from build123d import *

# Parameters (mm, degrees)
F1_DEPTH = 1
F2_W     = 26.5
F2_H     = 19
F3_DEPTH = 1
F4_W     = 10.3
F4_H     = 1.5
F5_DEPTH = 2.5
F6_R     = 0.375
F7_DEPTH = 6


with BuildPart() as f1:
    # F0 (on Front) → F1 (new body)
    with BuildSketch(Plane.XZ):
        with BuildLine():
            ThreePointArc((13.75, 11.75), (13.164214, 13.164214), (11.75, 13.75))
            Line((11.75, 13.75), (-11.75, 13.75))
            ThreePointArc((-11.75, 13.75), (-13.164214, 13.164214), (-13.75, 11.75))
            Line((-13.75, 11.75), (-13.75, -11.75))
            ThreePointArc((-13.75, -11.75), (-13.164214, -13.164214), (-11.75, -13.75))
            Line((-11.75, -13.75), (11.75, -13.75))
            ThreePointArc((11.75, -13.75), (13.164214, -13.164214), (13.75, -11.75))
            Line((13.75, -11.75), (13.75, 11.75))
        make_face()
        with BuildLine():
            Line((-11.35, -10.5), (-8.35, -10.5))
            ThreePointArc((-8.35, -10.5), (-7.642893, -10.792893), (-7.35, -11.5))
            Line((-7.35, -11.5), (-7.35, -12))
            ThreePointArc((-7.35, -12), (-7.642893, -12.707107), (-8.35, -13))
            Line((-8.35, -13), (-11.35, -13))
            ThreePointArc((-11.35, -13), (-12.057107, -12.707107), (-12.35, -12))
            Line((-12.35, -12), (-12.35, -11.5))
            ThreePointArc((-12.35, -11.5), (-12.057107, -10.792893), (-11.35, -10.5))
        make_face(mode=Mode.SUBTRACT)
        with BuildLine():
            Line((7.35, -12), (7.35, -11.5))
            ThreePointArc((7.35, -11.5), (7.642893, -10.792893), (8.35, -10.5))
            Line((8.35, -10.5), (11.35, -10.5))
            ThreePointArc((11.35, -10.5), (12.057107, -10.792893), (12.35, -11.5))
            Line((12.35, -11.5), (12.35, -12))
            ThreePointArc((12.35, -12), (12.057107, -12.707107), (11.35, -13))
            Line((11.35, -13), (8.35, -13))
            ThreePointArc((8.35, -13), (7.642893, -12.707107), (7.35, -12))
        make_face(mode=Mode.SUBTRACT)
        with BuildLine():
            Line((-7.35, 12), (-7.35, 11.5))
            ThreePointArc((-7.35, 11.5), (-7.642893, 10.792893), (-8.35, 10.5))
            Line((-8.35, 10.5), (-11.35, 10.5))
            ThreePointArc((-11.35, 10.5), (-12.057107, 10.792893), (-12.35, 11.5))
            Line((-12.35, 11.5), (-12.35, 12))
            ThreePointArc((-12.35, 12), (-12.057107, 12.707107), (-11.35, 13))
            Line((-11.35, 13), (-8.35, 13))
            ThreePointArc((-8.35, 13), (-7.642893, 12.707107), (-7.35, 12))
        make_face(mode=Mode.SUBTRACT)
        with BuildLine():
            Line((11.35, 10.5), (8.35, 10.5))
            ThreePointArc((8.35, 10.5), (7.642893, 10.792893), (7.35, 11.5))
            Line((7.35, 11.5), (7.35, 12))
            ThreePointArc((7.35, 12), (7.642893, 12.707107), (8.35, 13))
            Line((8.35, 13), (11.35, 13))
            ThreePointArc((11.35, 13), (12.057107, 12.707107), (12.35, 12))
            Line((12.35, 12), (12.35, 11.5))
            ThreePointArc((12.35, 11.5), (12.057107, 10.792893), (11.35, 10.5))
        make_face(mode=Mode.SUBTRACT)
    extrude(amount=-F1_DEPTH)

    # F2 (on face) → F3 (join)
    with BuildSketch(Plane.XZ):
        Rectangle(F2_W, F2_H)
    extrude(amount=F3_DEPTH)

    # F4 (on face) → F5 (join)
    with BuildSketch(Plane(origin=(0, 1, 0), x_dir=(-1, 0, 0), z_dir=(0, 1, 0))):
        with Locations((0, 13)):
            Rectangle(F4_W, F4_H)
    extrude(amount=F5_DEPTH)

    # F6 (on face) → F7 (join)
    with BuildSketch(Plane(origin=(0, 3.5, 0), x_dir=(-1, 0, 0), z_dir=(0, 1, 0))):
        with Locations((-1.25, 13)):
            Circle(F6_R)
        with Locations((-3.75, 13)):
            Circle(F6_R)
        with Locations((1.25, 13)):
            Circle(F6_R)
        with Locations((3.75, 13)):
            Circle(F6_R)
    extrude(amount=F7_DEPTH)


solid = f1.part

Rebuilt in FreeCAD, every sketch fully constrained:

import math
import FreeCAD as App
import Part
import Sketcher
Q = App.Units.Quantity


def add_polygon(sketch, points):
    """Adds a closed chain of lines whose ends are joined by coincident constraints."""
    first, n = sketch.GeometryCount, len(points)
    for a, b in zip(points, points[1:] + points[:1]):
        sketch.addGeometry(Part.LineSegment(App.Vector(*a, 0), App.Vector(*b, 0)), False)
    for i in range(n):
        sketch.addConstraint(Sketcher.Constraint("Coincident", first + i, 2, first + (i + 1) % n, 1))

doc = App.newDocument("Part")
body = doc.addObject("PartDesign::Body", "Body")

# Sketch on XZ plane
sketch1 = body.newObject("Sketcher::SketchObject", "Sketch")
sketch1.AttachmentSupport = (doc.getObject("XZ_Plane"), [""])
sketch1.MapMode = "FlatFace"
sketch1.addGeometry(Part.ArcOfCircle(Part.Circle(App.Vector(11.750001, 11.750001, 0), App.Vector(0, 0, 1), 1.999999), math.radians(-0.000043), math.radians(90.000043)), False)
sketch1.addGeometry(Part.LineSegment(App.Vector(11.75, 13.75, 0), App.Vector(-11.75, 13.75, 0)), False)
sketch1.addGeometry(Part.ArcOfCircle(Part.Circle(App.Vector(-11.750001, 11.750001, 0), App.Vector(0, 0, 1), 1.999999), math.radians(89.999957), math.radians(180.000043)), False)
sketch1.addGeometry(Part.LineSegment(App.Vector(-13.75, 11.75, 0), App.Vector(-13.75, -11.75, 0)), False)
sketch1.addGeometry(Part.ArcOfCircle(Part.Circle(App.Vector(-11.750001, -11.750001, 0), App.Vector(0, 0, 1), 1.999999), math.radians(179.999957), math.radians(270.000043)), False)
sketch1.addGeometry(Part.LineSegment(App.Vector(-11.75, -13.75, 0), App.Vector(11.75, -13.75, 0)), False)
sketch1.addGeometry(Part.ArcOfCircle(Part.Circle(App.Vector(11.750001, -11.750001, 0), App.Vector(0, 0, 1), 1.999999), math.radians(-90.000043), math.radians(0.000043)), False)
sketch1.addGeometry(Part.LineSegment(App.Vector(13.75, -11.75, 0), App.Vector(13.75, 11.75, 0)), False)
sketch1.addGeometry(Part.ArcOfCircle(Part.Circle(App.Vector(-11.350001, -11.499999, 0), App.Vector(0, 0, 1), 0.999999), math.radians(89.999957), math.radians(180.000043)), False)
sketch1.addGeometry(Part.LineSegment(App.Vector(-11.35, -10.5, 0), App.Vector(-8.35, -10.5, 0)), False)
sketch1.addGeometry(Part.ArcOfCircle(Part.Circle(App.Vector(-8.349999, -11.499999, 0), App.Vector(0, 0, 1), 0.999999), math.radians(-0.000043), math.radians(90.000043)), False)
sketch1.addGeometry(Part.LineSegment(App.Vector(-7.35, -11.5, 0), App.Vector(-7.35, -12, 0)), False)
sketch1.addGeometry(Part.ArcOfCircle(Part.Circle(App.Vector(-8.349999, -12.000001, 0), App.Vector(0, 0, 1), 0.999999), math.radians(-90.000043), math.radians(0.000043)), False)
sketch1.addGeometry(Part.LineSegment(App.Vector(-8.35, -13, 0), App.Vector(-11.35, -13, 0)), False)
sketch1.addGeometry(Part.ArcOfCircle(Part.Circle(App.Vector(-11.350001, -12.000001, 0), App.Vector(0, 0, 1), 0.999999), math.radians(179.999957), math.radians(270.000043)), False)
sketch1.addGeometry(Part.LineSegment(App.Vector(-12.35, -12, 0), App.Vector(-12.35, -11.5, 0)), False)
sketch1.addGeometry(Part.ArcOfCircle(Part.Circle(App.Vector(8.349999, -12.000001, 0), App.Vector(0, 0, 1), 0.999999), math.radians(179.999957), math.radians(270.000043)), False)
sketch1.addGeometry(Part.LineSegment(App.Vector(7.35, -12, 0), App.Vector(7.35, -11.5, 0)), False)
sketch1.addGeometry(Part.ArcOfCircle(Part.Circle(App.Vector(8.349999, -11.499999, 0), App.Vector(0, 0, 1), 0.999999), math.radians(89.999957), math.radians(180.000043)), False)
sketch1.addGeometry(Part.LineSegment(App.Vector(8.35, -10.5, 0), App.Vector(11.35, -10.5, 0)), False)
sketch1.addGeometry(Part.ArcOfCircle(Part.Circle(App.Vector(11.350001, -11.499999, 0), App.Vector(0, 0, 1), 0.999999), math.radians(-0.000043), math.radians(90.000043)), False)
sketch1.addGeometry(Part.LineSegment(App.Vector(12.35, -11.5, 0), App.Vector(12.35, -12, 0)), False)
sketch1.addGeometry(Part.ArcOfCircle(Part.Circle(App.Vector(11.350001, -12.000001, 0), App.Vector(0, 0, 1), 0.999999), math.radians(-90.000043), math.radians(0.000043)), False)
sketch1.addGeometry(Part.LineSegment(App.Vector(11.35, -13, 0), App.Vector(8.35, -13, 0)), False)
sketch1.addGeometry(Part.ArcOfCircle(Part.Circle(App.Vector(-8.349999, 12.000001, 0), App.Vector(0, 0, 1), 0.999999), math.radians(-0.000043), math.radians(90.000043)), False)
sketch1.addGeometry(Part.LineSegment(App.Vector(-7.35, 12, 0), App.Vector(-7.35, 11.5, 0)), False)
sketch1.addGeometry(Part.ArcOfCircle(Part.Circle(App.Vector(-8.349999, 11.499999, 0), App.Vector(0, 0, 1), 0.999999), math.radians(-90.000043), math.radians(0.000043)), False)
sketch1.addGeometry(Part.LineSegment(App.Vector(-8.35, 10.5, 0), App.Vector(-11.35, 10.5, 0)), False)
sketch1.addGeometry(Part.ArcOfCircle(Part.Circle(App.Vector(-11.350001, 11.499999, 0), App.Vector(0, 0, 1), 0.999999), math.radians(179.999957), math.radians(270.000043)), False)
sketch1.addGeometry(Part.LineSegment(App.Vector(-12.35, 11.5, 0), App.Vector(-12.35, 12, 0)), False)
sketch1.addGeometry(Part.ArcOfCircle(Part.Circle(App.Vector(-11.350001, 12.000001, 0), App.Vector(0, 0, 1), 0.999999), math.radians(89.999957), math.radians(180.000043)), False)
sketch1.addGeometry(Part.LineSegment(App.Vector(-11.35, 13, 0), App.Vector(-8.35, 13, 0)), False)
sketch1.addGeometry(Part.ArcOfCircle(Part.Circle(App.Vector(11.350001, 11.499999, 0), App.Vector(0, 0, 1), 0.999999), math.radians(-90.000043), math.radians(0.000043)), False)
sketch1.addGeometry(Part.LineSegment(App.Vector(11.35, 10.5, 0), App.Vector(8.35, 10.5, 0)), False)
sketch1.addGeometry(Part.ArcOfCircle(Part.Circle(App.Vector(8.349999, 11.499999, 0), App.Vector(0, 0, 1), 0.999999), math.radians(179.999957), math.radians(270.000043)), False)
sketch1.addGeometry(Part.LineSegment(App.Vector(7.35, 11.5, 0), App.Vector(7.35, 12, 0)), False)
sketch1.addGeometry(Part.ArcOfCircle(Part.Circle(App.Vector(8.349999, 12.000001, 0), App.Vector(0, 0, 1), 0.999999), math.radians(89.999957), math.radians(180.000043)), False)
sketch1.addGeometry(Part.LineSegment(App.Vector(8.35, 13, 0), App.Vector(11.35, 13, 0)), False)
sketch1.addGeometry(Part.ArcOfCircle(Part.Circle(App.Vector(11.350001, 12.000001, 0), App.Vector(0, 0, 1), 0.999999), math.radians(-0.000043), math.radians(90.000043)), False)
sketch1.addGeometry(Part.LineSegment(App.Vector(12.35, 12, 0), App.Vector(12.35, 11.5, 0)), False)
sketch1.addConstraint(Sketcher.Constraint("Tangent", 0, 2, 1, 1))
sketch1.addConstraint(Sketcher.Constraint("Tangent", 1, 2, 2, 1))
sketch1.addConstraint(Sketcher.Constraint("Tangent", 2, 2, 3, 1))
sketch1.addConstraint(Sketcher.Constraint("Tangent", 3, 2, 4, 1))
sketch1.addConstraint(Sketcher.Constraint("Tangent", 4, 2, 5, 1))
sketch1.addConstraint(Sketcher.Constraint("Tangent", 5, 2, 6, 1))
sketch1.addConstraint(Sketcher.Constraint("Tangent", 6, 2, 7, 1))
sketch1.addConstraint(Sketcher.Constraint("Tangent", 7, 2, 0, 1))
sketch1.addConstraint(Sketcher.Constraint("Tangent", 8, 1, 9, 1))
sketch1.addConstraint(Sketcher.Constraint("Tangent", 9, 2, 10, 2))
sketch1.addConstraint(Sketcher.Constraint("Tangent", 10, 1, 11, 1))
sketch1.addConstraint(Sketcher.Constraint("Tangent", 11, 2, 12, 2))
sketch1.addConstraint(Sketcher.Constraint("Tangent", 12, 1, 13, 1))
sketch1.addConstraint(Sketcher.Constraint("Tangent", 13, 2, 14, 2))
sketch1.addConstraint(Sketcher.Constraint("Tangent", 14, 1, 15, 1))
sketch1.addConstraint(Sketcher.Constraint("Tangent", 15, 2, 8, 2))
sketch1.addConstraint(Sketcher.Constraint("Tangent", 16, 1, 17, 1))
sketch1.addConstraint(Sketcher.Constraint("Tangent", 17, 2, 18, 2))
sketch1.addConstraint(Sketcher.Constraint("Tangent", 18, 1, 19, 1))
sketch1.addConstraint(Sketcher.Constraint("Tangent", 19, 2, 20, 2))
sketch1.addConstraint(Sketcher.Constraint("Tangent", 20, 1, 21, 1))
sketch1.addConstraint(Sketcher.Constraint("Tangent", 21, 2, 22, 2))
sketch1.addConstraint(Sketcher.Constraint("Tangent", 22, 1, 23, 1))
sketch1.addConstraint(Sketcher.Constraint("Tangent", 23, 2, 16, 2))
sketch1.addConstraint(Sketcher.Constraint("Tangent", 24, 1, 25, 1))
sketch1.addConstraint(Sketcher.Constraint("Tangent", 25, 2, 26, 2))
sketch1.addConstraint(Sketcher.Constraint("Tangent", 26, 1, 27, 1))
sketch1.addConstraint(Sketcher.Constraint("Tangent", 27, 2, 28, 2))
sketch1.addConstraint(Sketcher.Constraint("Tangent", 28, 1, 29, 1))
sketch1.addConstraint(Sketcher.Constraint("Tangent", 29, 2, 30, 2))
sketch1.addConstraint(Sketcher.Constraint("Tangent", 30, 1, 31, 1))
sketch1.addConstraint(Sketcher.Constraint("Tangent", 31, 2, 24, 2))
sketch1.addConstraint(Sketcher.Constraint("Tangent", 32, 1, 33, 1))
sketch1.addConstraint(Sketcher.Constraint("Tangent", 33, 2, 34, 2))
sketch1.addConstraint(Sketcher.Constraint("Tangent", 34, 1, 35, 1))
sketch1.addConstraint(Sketcher.Constraint("Tangent", 35, 2, 36, 2))
sketch1.addConstraint(Sketcher.Constraint("Tangent", 36, 1, 37, 1))
sketch1.addConstraint(Sketcher.Constraint("Tangent", 37, 2, 38, 2))
sketch1.addConstraint(Sketcher.Constraint("Tangent", 38, 1, 39, 1))
sketch1.addConstraint(Sketcher.Constraint("Tangent", 39, 2, 32, 2))
sketch1.addConstraint(Sketcher.Constraint("Horizontal", 1))
sketch1.addConstraint(Sketcher.Constraint("Vertical", 3))
sketch1.addConstraint(Sketcher.Constraint("Horizontal", 5))
sketch1.addConstraint(Sketcher.Constraint("Vertical", 7))
sketch1.addConstraint(Sketcher.Constraint("Horizontal", 9))
sketch1.addConstraint(Sketcher.Constraint("Vertical", 11))
sketch1.addConstraint(Sketcher.Constraint("Horizontal", 13))
sketch1.addConstraint(Sketcher.Constraint("Vertical", 15))
sketch1.addConstraint(Sketcher.Constraint("Vertical", 17))
sketch1.addConstraint(Sketcher.Constraint("Horizontal", 19))
sketch1.addConstraint(Sketcher.Constraint("Vertical", 21))
sketch1.addConstraint(Sketcher.Constraint("Horizontal", 23))
sketch1.addConstraint(Sketcher.Constraint("Vertical", 25))
sketch1.addConstraint(Sketcher.Constraint("Horizontal", 27))
sketch1.addConstraint(Sketcher.Constraint("Vertical", 29))
sketch1.addConstraint(Sketcher.Constraint("Horizontal", 31))
sketch1.addConstraint(Sketcher.Constraint("Horizontal", 33))
sketch1.addConstraint(Sketcher.Constraint("Vertical", 35))
sketch1.addConstraint(Sketcher.Constraint("Horizontal", 37))
sketch1.addConstraint(Sketcher.Constraint("Vertical", 39))
sketch1.addConstraint(Sketcher.Constraint("Equal", 0, 2))
sketch1.addConstraint(Sketcher.Constraint("Equal", 2, 4))
sketch1.addConstraint(Sketcher.Constraint("Equal", 4, 6))
sketch1.addConstraint(Sketcher.Constraint("Equal", 8, 10))
sketch1.addConstraint(Sketcher.Constraint("Equal", 10, 12))
sketch1.addConstraint(Sketcher.Constraint("Equal", 12, 14))
sketch1.addConstraint(Sketcher.Constraint("Equal", 14, 16))
sketch1.addConstraint(Sketcher.Constraint("Equal", 16, 18))
sketch1.addConstraint(Sketcher.Constraint("Equal", 18, 20))
sketch1.addConstraint(Sketcher.Constraint("Equal", 20, 22))
sketch1.addConstraint(Sketcher.Constraint("Equal", 22, 24))
sketch1.addConstraint(Sketcher.Constraint("Equal", 24, 26))
sketch1.addConstraint(Sketcher.Constraint("Equal", 26, 28))
sketch1.addConstraint(Sketcher.Constraint("Equal", 28, 30))
sketch1.addConstraint(Sketcher.Constraint("Equal", 30, 32))
sketch1.addConstraint(Sketcher.Constraint("Equal", 32, 34))
sketch1.addConstraint(Sketcher.Constraint("Equal", 34, 36))
sketch1.addConstraint(Sketcher.Constraint("Equal", 36, 38))
sketch1.addConstraint(Sketcher.Constraint("Symmetric", 0, 3, 4, 3, -1, 1))
sketch1.addConstraint(Sketcher.Constraint("Symmetric", 16, 3, 24, 3, -1, 1))
sketch1.addConstraint(Sketcher.Constraint("Symmetric", 20, 3, 28, 3, -1, 1))
sketch1.addConstraint(Sketcher.Constraint("Symmetric", 8, 3, 32, 3, -1, 1))
sketch1.addConstraint(Sketcher.Constraint("Symmetric", 12, 3, 36, 3, -1, 1))
sketch1.addConstraint(Sketcher.Constraint("Symmetric", 12, 3, 16, 3, -2))
sketch1.addConstraint(Sketcher.Constraint("Symmetric", 8, 3, 20, 3, -2))
sketch1.addConstraint(Sketcher.Constraint("Equal", 5, 3))
sketch1.addConstraint(Sketcher.Constraint("Radius", 0, Q("1.999999 mm")))
sketch1.addConstraint(Sketcher.Constraint("Radius", 8, Q("0.999999 mm")))
sketch1.addConstraint(Sketcher.Constraint("DistanceX", 9, 1, 9, 2, Q("3 mm")))
sketch1.addConstraint(Sketcher.Constraint("DistanceX", 1, 2, 1, 1, Q("23.5 mm")))
sketch1.addConstraint(Sketcher.Constraint("DistanceY", 11, 2, 11, 1, Q("0.5 mm")))
sketch1.addConstraint(Sketcher.Constraint("DistanceY", 12, 3, -1, 1, Q("12.000001 mm")))
sketch1.addConstraint(Sketcher.Constraint("DistanceX", 4, 3, 8, 3, Q("0.400001 mm")))
pad1 = body.newObject("PartDesign::Pad", "Pad")
pad1.Profile = sketch1
pad1.Length = 1
pad1.Reversed = True

# Sketch on XZ plane
sketch2 = body.newObject("Sketcher::SketchObject", "Sketch001")
sketch2.AttachmentSupport = (doc.getObject("XZ_Plane"), [""])
sketch2.MapMode = "FlatFace"
add_polygon(sketch2, [(-13.25, 9.5), (-13.25, -9.5), (13.25, -9.5), (13.25, 9.5)])  # lines 0-3
sketch2.addConstraint(Sketcher.Constraint("Vertical", 0))
sketch2.addConstraint(Sketcher.Constraint("Horizontal", 1))
sketch2.addConstraint(Sketcher.Constraint("Vertical", 2))
sketch2.addConstraint(Sketcher.Constraint("Horizontal", 3))
sketch2.addConstraint(Sketcher.Constraint("Symmetric", 0, 2, 2, 2, -1, 1))
sketch2.addConstraint(Sketcher.Constraint("DistanceY", 0, 2, 0, 1, Q("19 mm")))
sketch2.addConstraint(Sketcher.Constraint("DistanceX", 1, 1, 1, 2, Q("26.5 mm")))
pad2 = body.newObject("PartDesign::Pad", "Pad001")
pad2.Profile = sketch2
pad2.Length = 1

# Sketch on XZ plane
sketch3 = body.newObject("Sketcher::SketchObject", "Sketch002")
sketch3.AttachmentSupport = (doc.getObject("XZ_Plane"), [""])
sketch3.MapMode = "FlatFace"
sketch3.AttachmentOffset = App.Placement(App.Vector(0, 0, -1), App.Rotation())
add_polygon(sketch3, [(5.15, 13.75), (5.15, 12.25), (-5.15, 12.25), (-5.15, 13.75)])  # lines 0-3
sketch3.addConstraint(Sketcher.Constraint("Vertical", 0))
sketch3.addConstraint(Sketcher.Constraint("Horizontal", 1))
sketch3.addConstraint(Sketcher.Constraint("Vertical", 2))
sketch3.addConstraint(Sketcher.Constraint("Horizontal", 3))
sketch3.addConstraint(Sketcher.Constraint("DistanceX", 1, 2, 1, 1, Q("10.3 mm")))
sketch3.addConstraint(Sketcher.Constraint("DistanceY", 0, 2, 0, 1, Q("1.5 mm")))
sketch3.addConstraint(Sketcher.Constraint("DistanceX", -1, 1, 0, 2, Q("5.15 mm")))
sketch3.addConstraint(Sketcher.Constraint("DistanceY", -1, 1, 0, 2, Q("12.25 mm")))
pad3 = body.newObject("PartDesign::Pad", "Pad002")
pad3.Profile = sketch3
pad3.Length = 2.5
pad3.Reversed = True

# Sketch on XZ plane
sketch4 = body.newObject("Sketcher::SketchObject", "Sketch003")
sketch4.AttachmentSupport = (doc.getObject("XZ_Plane"), [""])
sketch4.MapMode = "FlatFace"
sketch4.AttachmentOffset = App.Placement(App.Vector(0, 0, -3.5), App.Rotation())
sketch4.addGeometry(Part.Circle(App.Vector(1.25, 13, 0), App.Vector(0, 0, 1), 0.375), False)
sketch4.addGeometry(Part.Circle(App.Vector(3.75, 13, 0), App.Vector(0, 0, 1), 0.375), False)
sketch4.addGeometry(Part.Circle(App.Vector(-1.25, 13, 0), App.Vector(0, 0, 1), 0.375), False)
sketch4.addGeometry(Part.Circle(App.Vector(-3.75, 13, 0), App.Vector(0, 0, 1), 0.375), False)
sketch4.addConstraint(Sketcher.Constraint("Equal", 0, 1))
sketch4.addConstraint(Sketcher.Constraint("Equal", 1, 2))
sketch4.addConstraint(Sketcher.Constraint("Equal", 2, 3))
sketch4.addConstraint(Sketcher.Constraint("Symmetric", 0, 3, 2, 3, -2))
sketch4.addConstraint(Sketcher.Constraint("Symmetric", 1, 3, 3, 3, -2))
sketch4.addConstraint(Sketcher.Constraint("Horizontal", 0, 3, 1, 3))
sketch4.addConstraint(Sketcher.Constraint("Diameter", 0, Q("0.75 mm")))
sketch4.addConstraint(Sketcher.Constraint("DistanceY", -1, 1, 0, 3, Q("13 mm")))
sketch4.addConstraint(Sketcher.Constraint("DistanceX", 2, 3, 1, 3, Q("5 mm")))
sketch4.addConstraint(Sketcher.Constraint("DistanceX", 0, 3, 1, 3, Q("2.5 mm")))
pad4 = body.newObject("PartDesign::Pad", "Pad003")
pad4.Profile = sketch4
pad4.Length = 6
pad4.Reversed = True

doc.recompute()
